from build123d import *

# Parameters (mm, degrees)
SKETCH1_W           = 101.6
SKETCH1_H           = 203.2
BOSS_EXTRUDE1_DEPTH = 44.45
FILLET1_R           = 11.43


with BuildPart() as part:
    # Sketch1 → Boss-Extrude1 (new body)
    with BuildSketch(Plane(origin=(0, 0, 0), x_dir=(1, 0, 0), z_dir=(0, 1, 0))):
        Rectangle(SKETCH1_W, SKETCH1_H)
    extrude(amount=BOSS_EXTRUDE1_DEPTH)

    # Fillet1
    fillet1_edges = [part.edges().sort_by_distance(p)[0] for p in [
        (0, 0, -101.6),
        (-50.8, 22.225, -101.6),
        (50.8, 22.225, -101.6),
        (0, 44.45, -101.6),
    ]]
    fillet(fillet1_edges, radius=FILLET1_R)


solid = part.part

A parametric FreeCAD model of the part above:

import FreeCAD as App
import Part
import Sketcher
Q = App.Units.Quantity


def edges_at(feature, points):
    """Names of the edges that pass closest to the given points."""
    edges = feature.Shape.Edges
    near = lambda p: min(range(len(edges)), key=lambda i: edges[i].distToShape(Part.Vertex(*p))[0])
    return sorted({f"Edge{near(p) + 1}" for p in points})


def add_polygon(sketch, points):
    """Adds a closed chain of lines whose ends are joined by coincident constraints."""
    first, n = sketch.GeometryCount, len(points)
    for a, b in zip(points, points[1:] + points[:1]):
        sketch.addGeometry(Part.LineSegment(App.Vector(*a, 0), App.Vector(*b, 0)), False)
    for i in range(n):
        sketch.addConstraint(Sketcher.Constraint("Coincident", first + i, 2, first + (i + 1) % n, 1))

doc = App.newDocument("Part")
body = doc.addObject("PartDesign::Body", "Body")

sketch1 = body.newObject("Sketcher::SketchObject", "Sketch")
sketch1.AttachmentSupport = (doc.getObject("XZ_Plane"), [""])
sketch1.MapMode = "FlatFace"
add_polygon(sketch1, [(-50.8, -101.6), (-50.8, 101.6), (50.8, 101.6), (50.8, -101.6)])
sketch1.addConstraint([
    Sketcher.Constraint("Vertical", 0),
    Sketcher.Constraint("Horizontal", 1),
    Sketcher.Constraint("Vertical", 2),
    Sketcher.Constraint("Horizontal", 3),
    Sketcher.Constraint("Symmetric", 0, 2, 2, 2, -1, 1),
    Sketcher.Constraint("DistanceX", 1, 1, 1, 2, Q("4 in")),
    Sketcher.Constraint("DistanceY", 0, 1, 0, 2, Q("8 in")),
])
pad1 = body.newObject("PartDesign::Pad", "Pad")
pad1.Profile = sketch1
pad1.Length = Q("1.75 in")
pad1.Reversed = True
doc.recompute()

fillet = body.newObject("PartDesign::Fillet", "Fillet")
fillet.Base = (pad1, edges_at(pad1, [
    (0, 0, -101.6),
    (-50.8, 22.225, -101.6),
    (50.8, 22.225, -101.6),
    (0, 44.45, -101.6),
]))
fillet.Radius = Q("0.45 in")

doc.recompute()
